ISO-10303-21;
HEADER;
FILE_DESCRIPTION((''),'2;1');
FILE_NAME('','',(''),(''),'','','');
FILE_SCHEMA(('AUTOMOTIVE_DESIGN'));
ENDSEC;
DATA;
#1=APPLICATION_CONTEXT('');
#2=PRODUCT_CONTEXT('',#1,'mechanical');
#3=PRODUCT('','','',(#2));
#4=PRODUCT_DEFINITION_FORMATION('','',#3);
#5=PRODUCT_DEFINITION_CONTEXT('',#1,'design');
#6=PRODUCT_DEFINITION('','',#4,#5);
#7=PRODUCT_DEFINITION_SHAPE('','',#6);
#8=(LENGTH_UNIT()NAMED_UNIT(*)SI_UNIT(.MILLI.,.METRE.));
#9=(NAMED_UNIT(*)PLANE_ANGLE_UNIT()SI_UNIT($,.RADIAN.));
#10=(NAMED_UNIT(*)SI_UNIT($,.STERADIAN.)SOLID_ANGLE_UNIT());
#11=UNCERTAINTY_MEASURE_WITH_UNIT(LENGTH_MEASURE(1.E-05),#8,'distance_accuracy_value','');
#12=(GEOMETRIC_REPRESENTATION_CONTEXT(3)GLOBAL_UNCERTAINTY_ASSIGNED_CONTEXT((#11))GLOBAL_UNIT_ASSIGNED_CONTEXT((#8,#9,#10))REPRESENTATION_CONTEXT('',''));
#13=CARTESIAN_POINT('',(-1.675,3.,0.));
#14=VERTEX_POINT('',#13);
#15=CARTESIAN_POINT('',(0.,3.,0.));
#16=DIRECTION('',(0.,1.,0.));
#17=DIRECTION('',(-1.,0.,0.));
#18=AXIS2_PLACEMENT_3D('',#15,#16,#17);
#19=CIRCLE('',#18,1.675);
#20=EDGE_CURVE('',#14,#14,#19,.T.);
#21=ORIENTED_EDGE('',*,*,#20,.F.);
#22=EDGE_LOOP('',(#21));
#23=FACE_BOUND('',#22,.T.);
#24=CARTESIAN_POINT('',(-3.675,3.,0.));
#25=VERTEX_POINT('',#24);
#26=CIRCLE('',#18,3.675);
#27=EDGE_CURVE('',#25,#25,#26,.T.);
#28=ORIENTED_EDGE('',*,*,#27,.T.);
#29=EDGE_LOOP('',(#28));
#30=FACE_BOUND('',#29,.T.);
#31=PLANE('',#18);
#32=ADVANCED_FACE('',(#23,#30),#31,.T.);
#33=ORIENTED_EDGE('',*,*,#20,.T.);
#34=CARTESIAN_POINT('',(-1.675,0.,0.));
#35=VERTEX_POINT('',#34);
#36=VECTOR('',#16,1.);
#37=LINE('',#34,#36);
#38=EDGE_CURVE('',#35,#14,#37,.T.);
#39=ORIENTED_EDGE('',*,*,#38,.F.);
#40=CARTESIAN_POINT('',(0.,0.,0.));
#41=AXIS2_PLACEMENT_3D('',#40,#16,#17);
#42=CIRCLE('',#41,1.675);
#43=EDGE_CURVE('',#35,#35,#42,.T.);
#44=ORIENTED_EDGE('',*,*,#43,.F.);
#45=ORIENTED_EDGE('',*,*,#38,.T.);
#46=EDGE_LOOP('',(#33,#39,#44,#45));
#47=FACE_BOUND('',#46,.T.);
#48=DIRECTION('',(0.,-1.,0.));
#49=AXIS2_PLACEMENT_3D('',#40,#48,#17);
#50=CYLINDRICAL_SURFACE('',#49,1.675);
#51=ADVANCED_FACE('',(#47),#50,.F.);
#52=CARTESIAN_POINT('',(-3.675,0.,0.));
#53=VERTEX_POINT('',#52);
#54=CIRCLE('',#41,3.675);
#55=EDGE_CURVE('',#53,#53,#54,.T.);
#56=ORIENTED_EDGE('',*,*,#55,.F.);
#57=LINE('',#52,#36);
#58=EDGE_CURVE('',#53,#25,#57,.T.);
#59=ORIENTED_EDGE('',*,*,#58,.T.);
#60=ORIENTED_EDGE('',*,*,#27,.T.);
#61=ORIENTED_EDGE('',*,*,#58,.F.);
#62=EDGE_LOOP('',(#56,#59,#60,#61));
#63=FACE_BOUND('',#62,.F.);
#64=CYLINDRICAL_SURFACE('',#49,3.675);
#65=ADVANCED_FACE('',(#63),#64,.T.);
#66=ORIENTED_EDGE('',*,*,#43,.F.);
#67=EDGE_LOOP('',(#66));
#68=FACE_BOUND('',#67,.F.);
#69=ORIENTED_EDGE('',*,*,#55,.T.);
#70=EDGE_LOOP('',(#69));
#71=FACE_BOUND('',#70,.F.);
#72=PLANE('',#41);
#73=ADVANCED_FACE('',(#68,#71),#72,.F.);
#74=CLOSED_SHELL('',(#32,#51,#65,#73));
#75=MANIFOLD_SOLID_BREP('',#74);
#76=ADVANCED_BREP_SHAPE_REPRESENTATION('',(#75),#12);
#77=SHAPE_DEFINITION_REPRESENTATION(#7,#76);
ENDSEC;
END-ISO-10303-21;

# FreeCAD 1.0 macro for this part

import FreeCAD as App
import Part
import Sketcher
from FreeCAD import Vector
Q = App.Units.Quantity

doc = App.newDocument("Part")
body = doc.addObject("PartDesign::Body", "Body")

# Sketch on XZ plane
sketch1 = body.newObject("Sketcher::SketchObject", "Sketch")
sketch1.AttachmentSupport = (doc.getObject("XZ_Plane"), [""])
sketch1.MapMode = "FlatFace"
sketch1.addGeometry([
    Part.Circle(Vector(0, 0, 0), Vector(0, 0, 1), 3.675),
    Part.Circle(Vector(0, 0, 0), Vector(0, 0, 1), 1.675),
], False)
sketch1.addConstraint([
    Sketcher.Constraint("Coincident", 0, 3, -1, 1),
    Sketcher.Constraint("Coincident", 1, 3, -1, 1),
    Sketcher.Constraint("Diameter", 0, Q("7.35 mm")),
    Sketcher.Constraint("Diameter", 1, Q("3.35 mm")),
])
pad1 = body.newObject("PartDesign::Pad", "Pad")
pad1.Profile = sketch1
pad1.Length = 3
pad1.Reversed = True

doc.recompute()
